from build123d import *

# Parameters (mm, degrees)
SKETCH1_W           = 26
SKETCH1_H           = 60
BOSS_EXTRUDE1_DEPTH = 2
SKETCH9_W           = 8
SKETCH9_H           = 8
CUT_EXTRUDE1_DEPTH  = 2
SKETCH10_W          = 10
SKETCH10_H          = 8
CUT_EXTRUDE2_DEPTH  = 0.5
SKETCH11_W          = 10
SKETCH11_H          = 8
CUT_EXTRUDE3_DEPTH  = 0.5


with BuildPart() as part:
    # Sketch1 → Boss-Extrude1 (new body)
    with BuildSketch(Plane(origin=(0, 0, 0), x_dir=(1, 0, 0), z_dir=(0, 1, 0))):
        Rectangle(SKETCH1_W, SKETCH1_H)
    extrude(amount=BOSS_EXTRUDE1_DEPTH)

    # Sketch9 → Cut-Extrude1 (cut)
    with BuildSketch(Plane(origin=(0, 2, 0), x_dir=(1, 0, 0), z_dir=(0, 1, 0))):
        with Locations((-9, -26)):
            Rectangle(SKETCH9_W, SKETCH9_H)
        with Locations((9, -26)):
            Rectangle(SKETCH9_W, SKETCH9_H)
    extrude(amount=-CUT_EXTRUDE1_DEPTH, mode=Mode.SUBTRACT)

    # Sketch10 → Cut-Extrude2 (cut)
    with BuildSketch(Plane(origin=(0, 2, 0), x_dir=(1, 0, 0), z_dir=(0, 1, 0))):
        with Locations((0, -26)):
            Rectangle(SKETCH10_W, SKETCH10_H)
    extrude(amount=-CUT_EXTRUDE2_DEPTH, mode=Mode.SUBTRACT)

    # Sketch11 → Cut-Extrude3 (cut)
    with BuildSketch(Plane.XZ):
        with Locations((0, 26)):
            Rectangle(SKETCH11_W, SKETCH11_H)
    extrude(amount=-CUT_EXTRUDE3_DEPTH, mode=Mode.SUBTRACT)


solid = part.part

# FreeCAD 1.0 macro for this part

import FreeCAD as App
import Part
import Sketcher
from FreeCAD import Vector

doc = App.newDocument("Part")
body = doc.addObject("PartDesign::Body", "Body")

# Sketch on XZ plane
sketch1 = doc.addObject("Sketcher::SketchObject", "Sketch")
body.addObject(sketch1)
sketch1.AttachmentSupport = (doc.XZ_Plane, [""])
sketch1.MapMode = "FlatFace"
sketch1.addGeometry([
    Part.LineSegment(Vector(-13, -30, 0), Vector(-13, 30, 0)),
    Part.LineSegment(Vector(-13, 30, 0), Vector(13, 30, 0)),
    Part.LineSegment(Vector(13, 30, 0), Vector(13, -30, 0)),
    Part.LineSegment(Vector(13, -30, 0), Vector(-13, -30, 0)),
], False)
sketch1.addConstraint([
    Sketcher.Constraint("Coincident", 0, 2, 1, 1),
    Sketcher.Constraint("Coincident", 1, 2, 2, 1),
    Sketcher.Constraint("Coincident", 2, 2, 3, 1),
    Sketcher.Constraint("Coincident", 3, 2, 0, 1),
    Sketcher.Constraint("Vertical", 0),
    Sketcher.Constraint("Horizontal", 1),
    Sketcher.Constraint("Vertical", 2),
    Sketcher.Constraint("Horizontal", 3),
    Sketcher.Constraint("Symmetric", 0, 2, 2, 2, -1, 1),
    Sketcher.Constraint("DistanceX", 1, 1, 1, 2, 26.0),
    Sketcher.Constraint("DistanceY", 0, 1, 0, 2, 60.0),
])
pad1 = doc.addObject("PartDesign::Pad", "Pad")
body.addObject(pad1)
pad1.Profile = sketch1
pad1.Length = 2
pad1.Reversed = True

# Sketch on XZ plane
sketch2 = doc.addObject("Sketcher::SketchObject", "Sketch001")
body.addObject(sketch2)
sketch2.AttachmentSupport = (doc.XZ_Plane, [""])
sketch2.MapMode = "FlatFace"
sketch2.AttachmentOffset = App.Placement(Vector(0, 0, -2), App.Rotation())
sketch2.addGeometry([
    Part.LineSegment(Vector(-13, 22, 0), Vector(-13, 30, 0)),  # 0
    Part.LineSegment(Vector(-13, 30, 0), Vector(-5, 30, 0)),  # 1
    Part.LineSegment(Vector(-5, 30, 0), Vector(-5, 22, 0)),  # 2
    Part.LineSegment(Vector(-5, 22, 0), Vector(-13, 22, 0)),  # 3
    Part.LineSegment(Vector(5, 22, 0), Vector(5, 30, 0)),  # 4
    Part.LineSegment(Vector(5, 30, 0), Vector(13, 30, 0)),  # 5
    Part.LineSegment(Vector(13, 30, 0), Vector(13, 22, 0)),  # 6
    Part.LineSegment(Vector(13, 22, 0), Vector(5, 22, 0)),  # 7
], False)
sketch2.addConstraint([
    Sketcher.Constraint("Coincident", 0, 2, 1, 1),
    Sketcher.Constraint("Coincident", 1, 2, 2, 1),
    Sketcher.Constraint("Coincident", 2, 2, 3, 1),
    Sketcher.Constraint("Coincident", 3, 2, 0, 1),
    Sketcher.Constraint("Coincident", 4, 2, 5, 1),
    Sketcher.Constraint("Coincident", 5, 2, 6, 1),
    Sketcher.Constraint("Coincident", 6, 2, 7, 1),
    Sketcher.Constraint("Coincident", 7, 2, 4, 1),
    Sketcher.Constraint("Vertical", 0),
    Sketcher.Constraint("Horizontal", 1),
    Sketcher.Constraint("Vertical", 2),
    Sketcher.Constraint("Horizontal", 3),
    Sketcher.Constraint("Vertical", 4),
    Sketcher.Constraint("Horizontal", 5),
    Sketcher.Constraint("Vertical", 6),
    Sketcher.Constraint("Horizontal", 7),
    Sketcher.Constraint("Symmetric", 1, 2, 4, 2, -2),
    Sketcher.Constraint("Symmetric", 3, 2, 6, 2, -2),
    Sketcher.Constraint("Equal", 7, 0),
    Sketcher.Constraint("DistanceX", 1, 1, 1, 2, 8.0),
    Sketcher.Constraint("DistanceX", 0, 2, -1, 1, 13.0),
    Sketcher.Constraint("DistanceY", -1, 1, 0, 2, 30.0),
])
pocket1 = doc.addObject("PartDesign::Pocket", "Pocket")
body.addObject(pocket1)
pocket1.Profile = sketch2
pocket1.Length = 2
pocket1.Reversed = True

# Sketch on XZ plane
sketch3 = doc.addObject("Sketcher::SketchObject", "Sketch002")
body.addObject(sketch3)
sketch3.AttachmentSupport = (doc.XZ_Plane, [""])
sketch3.MapMode = "FlatFace"
sketch3.AttachmentOffset = App.Placement(Vector(0, 0, -2), App.Rotation())
sketch3.addGeometry([
    Part.LineSegment(Vector(-5, 22, 0), Vector(-5, 30, 0)),
    Part.LineSegment(Vector(-5, 30, 0), Vector(5, 30, 0)),
    Part.LineSegment(Vector(5, 30, 0), Vector(5, 22, 0)),
    Part.LineSegment(Vector(5, 22, 0), Vector(-5, 22, 0)),
], False)
sketch3.addConstraint([
    Sketcher.Constraint("Coincident", 0, 2, 1, 1),
    Sketcher.Constraint("Coincident", 1, 2, 2, 1),
    Sketcher.Constraint("Coincident", 2, 2, 3, 1),
    Sketcher.Constraint("Coincident", 3, 2, 0, 1),
    Sketcher.Constraint("Vertical", 0),
    Sketcher.Constraint("Horizontal", 1),
    Sketcher.Constraint("Vertical", 2),
    Sketcher.Constraint("Horizontal", 3),
    Sketcher.Constraint("DistanceX", 1, 1, 1, 2, 10.0),
    Sketcher.Constraint("DistanceY", 0, 1, 0, 2, 8.0),
    Sketcher.Constraint("DistanceX", 0, 2, -1, 1, 5.0),
    Sketcher.Constraint("DistanceY", -1, 1, 0, 2, 30.0),
])
pocket2 = doc.addObject("PartDesign::Pocket", "Pocket001")
body.addObject(pocket2)
pocket2.Profile = sketch3
pocket2.Length = 0.5
pocket2.Reversed = True

# Sketch on XZ plane
sketch4 = doc.addObject("Sketcher::SketchObject", "Sketch003")
body.addObject(sketch4)
sketch4.AttachmentSupport = (doc.XZ_Plane, [""])
sketch4.MapMode = "FlatFace"
sketch4.addGeometry([
    Part.LineSegment(Vector(-5, 30, 0), Vector(-5, 22, 0)),
    Part.LineSegment(Vector(-5, 22, 0), Vector(5, 22, 0)),
    Part.LineSegment(Vector(5, 22, 0), Vector(5, 30, 0)),
    Part.LineSegment(Vector(5, 30, 0), Vector(-5, 30, 0)),
], False)
sketch4.addConstraint([
    Sketcher.Constraint("Coincident", 0, 2, 1, 1),
    Sketcher.Constraint("Coincident", 1, 2, 2, 1),
    Sketcher.Constraint("Coincident", 2, 2, 3, 1),
    Sketcher.Constraint("Coincident", 3, 2, 0, 1),
    Sketcher.Constraint("Vertical", 0),
    Sketcher.Constraint("Horizontal", 1),
    Sketcher.Constraint("Vertical", 2),
    Sketcher.Constraint("Horizontal", 3),
    Sketcher.Constraint("DistanceX", 1, 1, 1, 2, 10.0),
    Sketcher.Constraint("DistanceY", 0, 2, 0, 1, 8.0),
    Sketcher.Constraint("DistanceX", 0, 2, -1, 1, 5.0),
    Sketcher.Constraint("DistanceY", -1, 1, 0, 2, 22.0),
])
pocket3 = doc.addObject("PartDesign::Pocket", "Pocket002")
body.addObject(pocket3)
pocket3.Profile = sketch4
pocket3.Length = 0.5

doc.recompute()
